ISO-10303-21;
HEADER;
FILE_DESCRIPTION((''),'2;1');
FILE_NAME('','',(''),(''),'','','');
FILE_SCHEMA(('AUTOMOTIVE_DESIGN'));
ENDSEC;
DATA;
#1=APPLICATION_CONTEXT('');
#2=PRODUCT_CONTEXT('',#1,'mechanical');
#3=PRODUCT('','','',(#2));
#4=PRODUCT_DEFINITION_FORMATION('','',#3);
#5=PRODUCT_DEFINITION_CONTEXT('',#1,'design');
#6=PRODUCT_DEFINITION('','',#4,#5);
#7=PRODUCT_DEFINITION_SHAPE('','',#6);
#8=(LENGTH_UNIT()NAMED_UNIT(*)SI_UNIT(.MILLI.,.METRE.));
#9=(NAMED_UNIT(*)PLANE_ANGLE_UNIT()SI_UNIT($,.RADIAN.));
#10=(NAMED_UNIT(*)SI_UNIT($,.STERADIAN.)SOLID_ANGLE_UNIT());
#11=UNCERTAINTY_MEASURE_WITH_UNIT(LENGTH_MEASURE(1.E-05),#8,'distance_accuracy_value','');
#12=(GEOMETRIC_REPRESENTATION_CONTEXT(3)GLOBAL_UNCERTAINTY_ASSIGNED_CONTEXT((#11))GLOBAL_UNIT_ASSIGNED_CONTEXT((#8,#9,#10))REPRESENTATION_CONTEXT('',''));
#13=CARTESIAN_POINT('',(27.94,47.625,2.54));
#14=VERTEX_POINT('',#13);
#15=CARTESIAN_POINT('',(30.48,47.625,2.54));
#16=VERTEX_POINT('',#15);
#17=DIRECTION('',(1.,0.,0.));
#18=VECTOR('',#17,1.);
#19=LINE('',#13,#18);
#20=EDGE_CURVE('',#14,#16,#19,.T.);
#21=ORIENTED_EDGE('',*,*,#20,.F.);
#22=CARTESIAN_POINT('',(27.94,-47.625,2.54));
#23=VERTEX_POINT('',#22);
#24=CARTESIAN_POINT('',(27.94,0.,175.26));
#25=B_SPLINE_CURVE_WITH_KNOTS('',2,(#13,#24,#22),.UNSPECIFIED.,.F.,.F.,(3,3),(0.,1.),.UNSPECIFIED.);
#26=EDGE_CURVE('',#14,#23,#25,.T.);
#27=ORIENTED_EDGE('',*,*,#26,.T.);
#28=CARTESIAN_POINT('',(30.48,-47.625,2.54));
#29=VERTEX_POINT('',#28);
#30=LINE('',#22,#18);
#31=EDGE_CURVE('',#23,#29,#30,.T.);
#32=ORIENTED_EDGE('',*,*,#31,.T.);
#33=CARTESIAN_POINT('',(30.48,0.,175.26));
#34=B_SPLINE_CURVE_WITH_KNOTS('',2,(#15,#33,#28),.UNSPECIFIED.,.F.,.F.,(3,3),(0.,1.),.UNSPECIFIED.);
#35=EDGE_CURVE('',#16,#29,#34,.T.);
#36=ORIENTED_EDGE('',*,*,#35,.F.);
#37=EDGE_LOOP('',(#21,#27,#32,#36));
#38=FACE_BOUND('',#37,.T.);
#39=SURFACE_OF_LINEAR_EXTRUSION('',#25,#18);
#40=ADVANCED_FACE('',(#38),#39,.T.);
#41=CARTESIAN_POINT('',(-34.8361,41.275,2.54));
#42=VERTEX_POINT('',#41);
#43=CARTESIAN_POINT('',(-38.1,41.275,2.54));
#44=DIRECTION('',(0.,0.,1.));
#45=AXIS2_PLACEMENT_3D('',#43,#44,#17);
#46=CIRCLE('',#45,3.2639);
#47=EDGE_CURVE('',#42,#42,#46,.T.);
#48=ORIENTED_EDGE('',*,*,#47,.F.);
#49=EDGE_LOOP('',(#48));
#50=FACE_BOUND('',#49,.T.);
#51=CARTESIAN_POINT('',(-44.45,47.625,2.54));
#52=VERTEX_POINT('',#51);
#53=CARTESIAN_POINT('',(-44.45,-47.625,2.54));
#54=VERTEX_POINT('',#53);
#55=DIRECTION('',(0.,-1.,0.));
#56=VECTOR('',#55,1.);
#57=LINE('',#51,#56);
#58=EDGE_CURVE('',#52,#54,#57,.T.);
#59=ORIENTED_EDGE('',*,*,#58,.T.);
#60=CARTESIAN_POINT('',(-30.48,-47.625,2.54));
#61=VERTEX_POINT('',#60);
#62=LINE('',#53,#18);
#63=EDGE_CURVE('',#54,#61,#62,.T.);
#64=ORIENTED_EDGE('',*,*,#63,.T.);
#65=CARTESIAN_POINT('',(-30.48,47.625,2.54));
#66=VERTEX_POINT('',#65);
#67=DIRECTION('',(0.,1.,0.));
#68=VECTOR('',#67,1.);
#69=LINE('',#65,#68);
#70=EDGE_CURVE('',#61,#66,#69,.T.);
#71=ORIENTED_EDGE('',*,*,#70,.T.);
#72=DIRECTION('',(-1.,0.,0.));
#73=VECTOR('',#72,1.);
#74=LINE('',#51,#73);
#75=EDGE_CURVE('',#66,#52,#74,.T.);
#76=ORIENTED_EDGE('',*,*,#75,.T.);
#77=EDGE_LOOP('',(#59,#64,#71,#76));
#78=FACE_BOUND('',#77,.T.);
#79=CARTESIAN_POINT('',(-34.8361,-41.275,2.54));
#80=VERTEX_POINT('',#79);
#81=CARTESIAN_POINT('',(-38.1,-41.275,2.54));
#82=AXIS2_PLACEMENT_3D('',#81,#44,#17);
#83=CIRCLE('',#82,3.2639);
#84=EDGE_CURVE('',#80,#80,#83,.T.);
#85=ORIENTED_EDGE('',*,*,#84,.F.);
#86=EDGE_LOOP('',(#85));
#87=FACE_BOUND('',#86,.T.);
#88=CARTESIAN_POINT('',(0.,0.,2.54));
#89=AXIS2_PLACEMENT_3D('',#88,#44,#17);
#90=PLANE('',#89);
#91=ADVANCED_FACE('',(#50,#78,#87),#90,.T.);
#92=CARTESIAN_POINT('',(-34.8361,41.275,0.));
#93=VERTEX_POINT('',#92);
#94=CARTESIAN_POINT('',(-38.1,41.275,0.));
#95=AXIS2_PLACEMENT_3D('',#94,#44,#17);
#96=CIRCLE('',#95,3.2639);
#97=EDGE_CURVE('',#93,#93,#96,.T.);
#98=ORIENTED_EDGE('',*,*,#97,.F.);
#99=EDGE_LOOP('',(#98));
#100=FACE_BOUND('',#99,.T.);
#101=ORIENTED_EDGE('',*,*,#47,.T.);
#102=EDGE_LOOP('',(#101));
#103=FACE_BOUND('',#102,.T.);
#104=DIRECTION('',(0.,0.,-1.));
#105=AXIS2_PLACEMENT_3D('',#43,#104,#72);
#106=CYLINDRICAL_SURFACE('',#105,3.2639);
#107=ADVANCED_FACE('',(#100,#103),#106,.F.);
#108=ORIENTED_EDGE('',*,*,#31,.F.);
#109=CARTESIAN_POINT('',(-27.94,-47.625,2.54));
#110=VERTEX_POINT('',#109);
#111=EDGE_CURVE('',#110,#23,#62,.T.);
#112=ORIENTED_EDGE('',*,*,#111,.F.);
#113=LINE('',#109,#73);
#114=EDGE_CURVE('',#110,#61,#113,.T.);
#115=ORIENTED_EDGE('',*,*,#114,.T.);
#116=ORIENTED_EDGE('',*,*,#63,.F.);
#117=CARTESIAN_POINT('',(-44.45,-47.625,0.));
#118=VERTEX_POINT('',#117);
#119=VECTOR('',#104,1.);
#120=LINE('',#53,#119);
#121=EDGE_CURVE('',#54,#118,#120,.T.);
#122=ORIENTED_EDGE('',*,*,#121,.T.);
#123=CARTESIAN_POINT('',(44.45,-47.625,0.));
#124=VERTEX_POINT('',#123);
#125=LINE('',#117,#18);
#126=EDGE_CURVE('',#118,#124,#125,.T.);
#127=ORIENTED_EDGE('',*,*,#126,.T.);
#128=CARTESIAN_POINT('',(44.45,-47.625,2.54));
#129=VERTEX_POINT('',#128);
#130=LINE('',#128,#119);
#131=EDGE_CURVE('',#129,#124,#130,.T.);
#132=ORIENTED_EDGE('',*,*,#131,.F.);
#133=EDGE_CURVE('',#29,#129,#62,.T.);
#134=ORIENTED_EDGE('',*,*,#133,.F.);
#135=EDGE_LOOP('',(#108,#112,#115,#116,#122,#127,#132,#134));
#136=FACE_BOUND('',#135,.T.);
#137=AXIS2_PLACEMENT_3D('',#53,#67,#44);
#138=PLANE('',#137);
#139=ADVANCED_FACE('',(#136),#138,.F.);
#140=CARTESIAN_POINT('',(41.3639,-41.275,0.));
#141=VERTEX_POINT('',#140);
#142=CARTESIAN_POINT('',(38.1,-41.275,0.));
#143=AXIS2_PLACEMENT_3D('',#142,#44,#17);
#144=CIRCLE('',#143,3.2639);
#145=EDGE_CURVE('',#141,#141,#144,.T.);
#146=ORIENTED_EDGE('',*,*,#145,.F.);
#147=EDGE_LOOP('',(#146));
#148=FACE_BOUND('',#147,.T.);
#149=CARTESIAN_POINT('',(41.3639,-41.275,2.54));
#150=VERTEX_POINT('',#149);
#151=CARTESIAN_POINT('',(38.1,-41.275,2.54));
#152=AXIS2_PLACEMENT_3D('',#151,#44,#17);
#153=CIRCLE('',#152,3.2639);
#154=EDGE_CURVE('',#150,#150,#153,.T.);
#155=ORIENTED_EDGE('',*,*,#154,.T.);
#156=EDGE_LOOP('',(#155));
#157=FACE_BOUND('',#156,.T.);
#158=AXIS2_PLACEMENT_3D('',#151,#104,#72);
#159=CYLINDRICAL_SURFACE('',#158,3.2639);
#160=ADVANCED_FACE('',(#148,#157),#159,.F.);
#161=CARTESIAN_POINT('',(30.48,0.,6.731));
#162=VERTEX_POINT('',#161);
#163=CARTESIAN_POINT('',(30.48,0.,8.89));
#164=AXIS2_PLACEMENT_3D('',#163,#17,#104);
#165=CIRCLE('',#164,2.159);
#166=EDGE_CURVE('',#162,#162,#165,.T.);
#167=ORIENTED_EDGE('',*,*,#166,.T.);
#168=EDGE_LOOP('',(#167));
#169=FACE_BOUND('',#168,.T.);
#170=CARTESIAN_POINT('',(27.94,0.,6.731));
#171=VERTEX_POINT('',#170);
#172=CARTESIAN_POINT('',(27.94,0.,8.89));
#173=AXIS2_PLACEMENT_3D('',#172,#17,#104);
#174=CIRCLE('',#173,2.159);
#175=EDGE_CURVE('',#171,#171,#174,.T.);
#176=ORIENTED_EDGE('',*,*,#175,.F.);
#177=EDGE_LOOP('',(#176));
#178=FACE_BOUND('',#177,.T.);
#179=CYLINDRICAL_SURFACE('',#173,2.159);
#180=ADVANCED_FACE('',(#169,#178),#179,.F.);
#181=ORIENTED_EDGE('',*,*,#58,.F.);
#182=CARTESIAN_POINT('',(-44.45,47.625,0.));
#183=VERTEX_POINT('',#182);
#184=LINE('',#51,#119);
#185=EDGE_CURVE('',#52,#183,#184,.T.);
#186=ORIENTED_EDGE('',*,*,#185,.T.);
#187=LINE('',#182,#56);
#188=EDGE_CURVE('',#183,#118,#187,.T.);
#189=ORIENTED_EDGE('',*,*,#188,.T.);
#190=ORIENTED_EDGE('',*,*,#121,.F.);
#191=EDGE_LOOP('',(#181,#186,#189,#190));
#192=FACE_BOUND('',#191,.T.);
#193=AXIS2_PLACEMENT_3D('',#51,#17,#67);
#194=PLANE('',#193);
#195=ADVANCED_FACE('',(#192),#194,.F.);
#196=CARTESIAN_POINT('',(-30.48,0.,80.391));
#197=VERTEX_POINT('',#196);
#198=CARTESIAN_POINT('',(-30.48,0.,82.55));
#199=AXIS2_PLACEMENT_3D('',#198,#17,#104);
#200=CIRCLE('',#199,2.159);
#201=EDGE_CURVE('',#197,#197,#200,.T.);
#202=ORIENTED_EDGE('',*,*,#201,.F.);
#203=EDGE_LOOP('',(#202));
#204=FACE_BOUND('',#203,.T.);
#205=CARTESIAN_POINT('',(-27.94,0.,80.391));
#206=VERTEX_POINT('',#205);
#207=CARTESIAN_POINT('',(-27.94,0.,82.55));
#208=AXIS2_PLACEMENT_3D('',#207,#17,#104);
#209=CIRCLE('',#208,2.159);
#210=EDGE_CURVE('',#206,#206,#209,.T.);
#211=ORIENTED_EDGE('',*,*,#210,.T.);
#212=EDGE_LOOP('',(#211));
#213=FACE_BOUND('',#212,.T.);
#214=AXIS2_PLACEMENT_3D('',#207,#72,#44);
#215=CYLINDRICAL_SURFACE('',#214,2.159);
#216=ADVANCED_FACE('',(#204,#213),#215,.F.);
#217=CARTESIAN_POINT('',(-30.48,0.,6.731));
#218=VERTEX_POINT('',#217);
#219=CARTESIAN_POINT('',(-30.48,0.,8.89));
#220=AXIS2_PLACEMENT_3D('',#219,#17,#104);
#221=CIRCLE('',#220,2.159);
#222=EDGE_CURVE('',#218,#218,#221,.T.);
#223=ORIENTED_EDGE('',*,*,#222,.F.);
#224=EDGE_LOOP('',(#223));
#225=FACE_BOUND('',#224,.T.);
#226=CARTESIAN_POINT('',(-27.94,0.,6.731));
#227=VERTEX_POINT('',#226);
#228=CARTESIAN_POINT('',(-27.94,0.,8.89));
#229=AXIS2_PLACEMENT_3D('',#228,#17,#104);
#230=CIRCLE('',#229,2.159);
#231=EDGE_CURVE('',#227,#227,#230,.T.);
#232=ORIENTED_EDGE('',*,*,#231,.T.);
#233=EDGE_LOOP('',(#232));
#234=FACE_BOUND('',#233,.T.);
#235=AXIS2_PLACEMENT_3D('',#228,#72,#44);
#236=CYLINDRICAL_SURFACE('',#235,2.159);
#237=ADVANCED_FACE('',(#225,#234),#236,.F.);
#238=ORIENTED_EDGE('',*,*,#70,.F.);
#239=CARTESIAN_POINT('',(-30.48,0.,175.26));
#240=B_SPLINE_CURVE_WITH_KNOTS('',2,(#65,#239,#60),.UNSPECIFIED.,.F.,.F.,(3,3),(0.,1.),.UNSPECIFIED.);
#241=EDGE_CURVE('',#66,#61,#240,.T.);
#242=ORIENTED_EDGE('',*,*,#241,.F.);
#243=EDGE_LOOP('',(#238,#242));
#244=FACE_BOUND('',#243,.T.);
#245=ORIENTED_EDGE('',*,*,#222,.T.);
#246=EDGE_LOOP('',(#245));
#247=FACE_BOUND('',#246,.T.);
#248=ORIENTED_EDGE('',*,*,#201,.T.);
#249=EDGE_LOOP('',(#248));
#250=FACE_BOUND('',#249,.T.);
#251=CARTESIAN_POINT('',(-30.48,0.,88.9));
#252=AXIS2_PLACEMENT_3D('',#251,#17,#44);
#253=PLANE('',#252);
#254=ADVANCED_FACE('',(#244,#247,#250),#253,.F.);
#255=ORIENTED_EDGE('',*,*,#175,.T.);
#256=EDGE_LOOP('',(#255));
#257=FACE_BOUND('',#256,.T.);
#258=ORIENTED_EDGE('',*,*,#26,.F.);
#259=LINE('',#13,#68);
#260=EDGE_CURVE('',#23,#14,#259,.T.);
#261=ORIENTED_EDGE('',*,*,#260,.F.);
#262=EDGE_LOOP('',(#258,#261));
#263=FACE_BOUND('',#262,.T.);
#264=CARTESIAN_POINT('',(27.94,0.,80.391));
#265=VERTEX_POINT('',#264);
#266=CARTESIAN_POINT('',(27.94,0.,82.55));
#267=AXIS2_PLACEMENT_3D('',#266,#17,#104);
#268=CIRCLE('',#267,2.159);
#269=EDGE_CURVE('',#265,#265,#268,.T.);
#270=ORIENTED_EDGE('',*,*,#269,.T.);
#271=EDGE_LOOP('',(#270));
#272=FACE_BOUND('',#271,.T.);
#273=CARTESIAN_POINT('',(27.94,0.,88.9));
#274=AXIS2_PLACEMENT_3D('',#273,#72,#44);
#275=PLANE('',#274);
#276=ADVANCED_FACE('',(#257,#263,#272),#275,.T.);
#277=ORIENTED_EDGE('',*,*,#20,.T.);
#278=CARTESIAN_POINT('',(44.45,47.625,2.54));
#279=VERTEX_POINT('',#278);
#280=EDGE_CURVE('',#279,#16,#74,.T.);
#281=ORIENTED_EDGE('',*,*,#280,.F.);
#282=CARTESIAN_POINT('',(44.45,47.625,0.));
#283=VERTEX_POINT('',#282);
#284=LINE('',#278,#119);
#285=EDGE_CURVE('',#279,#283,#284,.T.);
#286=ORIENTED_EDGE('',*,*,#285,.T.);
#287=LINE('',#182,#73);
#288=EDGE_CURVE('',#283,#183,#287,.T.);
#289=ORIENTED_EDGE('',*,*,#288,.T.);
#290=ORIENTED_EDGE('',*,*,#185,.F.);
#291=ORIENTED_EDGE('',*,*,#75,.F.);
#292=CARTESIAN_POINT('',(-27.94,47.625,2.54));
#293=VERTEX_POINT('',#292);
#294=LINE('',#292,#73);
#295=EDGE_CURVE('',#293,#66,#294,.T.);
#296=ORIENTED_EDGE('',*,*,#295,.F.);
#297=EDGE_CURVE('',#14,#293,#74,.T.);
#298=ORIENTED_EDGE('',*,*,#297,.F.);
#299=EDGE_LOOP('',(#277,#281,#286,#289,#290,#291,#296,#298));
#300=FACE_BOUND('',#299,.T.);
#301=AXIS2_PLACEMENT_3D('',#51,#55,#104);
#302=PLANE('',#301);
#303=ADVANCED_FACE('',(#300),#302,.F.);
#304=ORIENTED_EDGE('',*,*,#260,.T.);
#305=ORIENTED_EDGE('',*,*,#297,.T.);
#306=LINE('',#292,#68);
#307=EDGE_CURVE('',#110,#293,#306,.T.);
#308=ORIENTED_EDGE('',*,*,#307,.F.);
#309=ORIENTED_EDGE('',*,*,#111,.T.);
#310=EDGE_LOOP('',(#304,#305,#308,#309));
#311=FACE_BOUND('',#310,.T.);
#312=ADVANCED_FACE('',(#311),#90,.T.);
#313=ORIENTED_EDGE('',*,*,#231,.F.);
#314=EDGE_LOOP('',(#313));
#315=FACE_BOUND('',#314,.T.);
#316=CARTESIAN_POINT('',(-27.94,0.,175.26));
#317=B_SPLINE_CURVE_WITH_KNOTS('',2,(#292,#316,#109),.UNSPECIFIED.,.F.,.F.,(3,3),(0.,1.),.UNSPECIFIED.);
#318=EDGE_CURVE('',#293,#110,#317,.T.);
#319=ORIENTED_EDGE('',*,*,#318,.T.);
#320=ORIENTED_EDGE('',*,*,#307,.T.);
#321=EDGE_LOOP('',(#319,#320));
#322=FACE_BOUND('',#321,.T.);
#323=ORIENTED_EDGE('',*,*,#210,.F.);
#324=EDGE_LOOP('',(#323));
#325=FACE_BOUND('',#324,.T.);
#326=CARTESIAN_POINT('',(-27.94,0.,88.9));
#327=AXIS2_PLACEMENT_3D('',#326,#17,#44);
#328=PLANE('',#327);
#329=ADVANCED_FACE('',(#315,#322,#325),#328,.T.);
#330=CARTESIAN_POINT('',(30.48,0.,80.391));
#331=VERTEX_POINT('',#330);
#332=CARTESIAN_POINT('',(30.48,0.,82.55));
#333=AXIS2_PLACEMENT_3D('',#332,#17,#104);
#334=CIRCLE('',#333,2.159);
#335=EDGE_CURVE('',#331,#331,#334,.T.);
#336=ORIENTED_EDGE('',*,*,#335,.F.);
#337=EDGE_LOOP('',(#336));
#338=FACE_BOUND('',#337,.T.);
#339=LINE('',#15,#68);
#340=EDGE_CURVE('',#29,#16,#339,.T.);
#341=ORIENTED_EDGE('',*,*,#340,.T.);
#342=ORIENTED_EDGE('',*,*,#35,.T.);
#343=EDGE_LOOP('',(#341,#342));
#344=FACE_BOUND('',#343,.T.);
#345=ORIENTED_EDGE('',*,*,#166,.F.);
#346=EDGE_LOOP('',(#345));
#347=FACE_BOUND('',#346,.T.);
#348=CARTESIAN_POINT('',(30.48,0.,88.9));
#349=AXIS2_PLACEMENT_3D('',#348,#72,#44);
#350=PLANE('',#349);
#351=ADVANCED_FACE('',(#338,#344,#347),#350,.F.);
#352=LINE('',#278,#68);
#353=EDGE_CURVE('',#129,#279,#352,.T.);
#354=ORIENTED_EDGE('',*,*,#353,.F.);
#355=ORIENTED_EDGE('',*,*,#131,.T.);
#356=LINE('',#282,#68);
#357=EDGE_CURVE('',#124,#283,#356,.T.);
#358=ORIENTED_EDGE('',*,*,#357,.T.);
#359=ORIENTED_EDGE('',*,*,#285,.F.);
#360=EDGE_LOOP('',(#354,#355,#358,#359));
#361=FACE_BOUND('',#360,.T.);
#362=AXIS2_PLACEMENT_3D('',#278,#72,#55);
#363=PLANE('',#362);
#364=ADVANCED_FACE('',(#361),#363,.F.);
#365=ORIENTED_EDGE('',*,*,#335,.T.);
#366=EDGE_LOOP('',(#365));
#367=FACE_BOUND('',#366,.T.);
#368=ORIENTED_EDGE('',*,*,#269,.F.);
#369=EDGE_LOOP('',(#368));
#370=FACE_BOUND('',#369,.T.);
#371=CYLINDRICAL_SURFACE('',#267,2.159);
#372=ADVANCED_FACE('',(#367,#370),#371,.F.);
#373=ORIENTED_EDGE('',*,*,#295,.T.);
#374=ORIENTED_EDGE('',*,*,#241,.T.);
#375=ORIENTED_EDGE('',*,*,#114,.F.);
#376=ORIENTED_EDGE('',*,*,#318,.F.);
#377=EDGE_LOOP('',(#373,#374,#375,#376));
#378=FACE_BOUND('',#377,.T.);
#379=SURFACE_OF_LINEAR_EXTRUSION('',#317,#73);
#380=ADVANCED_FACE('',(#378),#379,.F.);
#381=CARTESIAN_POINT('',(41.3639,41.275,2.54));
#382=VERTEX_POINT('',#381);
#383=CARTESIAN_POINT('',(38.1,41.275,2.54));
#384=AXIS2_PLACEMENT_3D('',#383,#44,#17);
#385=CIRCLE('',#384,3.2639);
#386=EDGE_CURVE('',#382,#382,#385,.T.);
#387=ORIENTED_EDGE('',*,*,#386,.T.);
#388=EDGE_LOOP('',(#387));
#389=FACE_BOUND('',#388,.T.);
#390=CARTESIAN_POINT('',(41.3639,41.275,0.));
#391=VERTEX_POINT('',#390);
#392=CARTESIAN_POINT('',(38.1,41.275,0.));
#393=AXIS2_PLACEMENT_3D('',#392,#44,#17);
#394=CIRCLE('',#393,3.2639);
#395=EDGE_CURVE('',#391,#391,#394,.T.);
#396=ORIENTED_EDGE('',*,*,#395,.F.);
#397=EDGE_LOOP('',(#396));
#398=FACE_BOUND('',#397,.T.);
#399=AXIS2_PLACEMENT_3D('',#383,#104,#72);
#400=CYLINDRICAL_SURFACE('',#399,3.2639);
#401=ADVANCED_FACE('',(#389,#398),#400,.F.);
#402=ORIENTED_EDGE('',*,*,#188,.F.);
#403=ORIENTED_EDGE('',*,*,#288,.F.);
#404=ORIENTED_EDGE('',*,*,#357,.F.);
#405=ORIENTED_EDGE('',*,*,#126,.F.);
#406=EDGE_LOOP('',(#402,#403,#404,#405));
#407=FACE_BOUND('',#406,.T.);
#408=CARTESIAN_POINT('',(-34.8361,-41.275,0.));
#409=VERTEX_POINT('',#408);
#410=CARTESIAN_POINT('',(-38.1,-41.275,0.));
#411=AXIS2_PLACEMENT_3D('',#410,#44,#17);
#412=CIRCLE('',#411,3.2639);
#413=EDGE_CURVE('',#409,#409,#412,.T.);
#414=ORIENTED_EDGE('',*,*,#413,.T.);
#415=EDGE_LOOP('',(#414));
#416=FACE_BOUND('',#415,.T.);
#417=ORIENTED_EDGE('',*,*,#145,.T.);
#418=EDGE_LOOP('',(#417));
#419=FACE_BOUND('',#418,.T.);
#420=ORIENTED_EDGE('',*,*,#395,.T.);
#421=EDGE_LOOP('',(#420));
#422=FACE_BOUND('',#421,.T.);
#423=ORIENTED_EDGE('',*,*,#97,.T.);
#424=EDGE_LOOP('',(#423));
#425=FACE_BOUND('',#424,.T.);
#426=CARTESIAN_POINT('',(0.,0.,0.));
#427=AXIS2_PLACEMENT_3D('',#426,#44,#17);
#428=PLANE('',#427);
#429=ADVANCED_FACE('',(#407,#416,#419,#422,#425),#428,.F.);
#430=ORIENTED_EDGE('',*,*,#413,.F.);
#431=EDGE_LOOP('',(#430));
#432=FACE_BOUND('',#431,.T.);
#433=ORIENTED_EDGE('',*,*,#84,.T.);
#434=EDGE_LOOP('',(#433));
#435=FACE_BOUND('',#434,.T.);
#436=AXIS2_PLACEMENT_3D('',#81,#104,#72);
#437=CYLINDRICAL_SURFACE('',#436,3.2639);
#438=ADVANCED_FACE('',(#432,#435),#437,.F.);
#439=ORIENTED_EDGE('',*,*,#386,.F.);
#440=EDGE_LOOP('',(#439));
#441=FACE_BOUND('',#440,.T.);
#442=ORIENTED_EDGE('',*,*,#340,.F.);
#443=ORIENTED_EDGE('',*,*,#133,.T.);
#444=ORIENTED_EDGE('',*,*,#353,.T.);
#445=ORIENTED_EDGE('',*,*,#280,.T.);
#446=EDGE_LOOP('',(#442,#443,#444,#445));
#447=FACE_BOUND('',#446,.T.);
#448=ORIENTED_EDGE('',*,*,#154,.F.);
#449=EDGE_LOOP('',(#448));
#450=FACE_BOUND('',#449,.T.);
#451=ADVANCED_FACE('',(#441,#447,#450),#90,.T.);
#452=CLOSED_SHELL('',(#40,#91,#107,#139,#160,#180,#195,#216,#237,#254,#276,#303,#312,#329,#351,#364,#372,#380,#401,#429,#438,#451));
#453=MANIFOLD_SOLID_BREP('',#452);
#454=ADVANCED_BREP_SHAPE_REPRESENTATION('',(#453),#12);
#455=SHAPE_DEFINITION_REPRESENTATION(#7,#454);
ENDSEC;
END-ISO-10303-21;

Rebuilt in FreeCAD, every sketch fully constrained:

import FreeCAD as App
import Part
import Sketcher
from FreeCAD import Vector
Q = App.Units.Quantity

doc = App.newDocument("Part")
body = doc.addObject("PartDesign::Body", "Body")

sketch1 = doc.addObject("Sketcher::SketchObject", "Sketch")
body.addObject(sketch1)
sketch1.AttachmentSupport = (doc.XY_Plane, [""])
sketch1.MapMode = "FlatFace"
sketch1.addGeometry([
    Part.LineSegment(Vector(-44.5, 47.6, 0), Vector(-44.5, -47.6, 0)),
    Part.LineSegment(Vector(-44.5, -47.6, 0), Vector(44.5, -47.6, 0)),
    Part.LineSegment(Vector(44.5, -47.6, 0), Vector(44.5, 47.6, 0)),
    Part.LineSegment(Vector(44.5, 47.6, 0), Vector(-44.5, 47.6, 0)),
    Part.Circle(Vector(-38.1, -41.3, 0), Vector(0, 0, 1), 3.3),
    Part.Circle(Vector(38.1, -41.3, 0), Vector(0, 0, 1), 3.3),
    Part.Circle(Vector(-38.1, 41.3, 0), Vector(0, 0, 1), 3.3),
    Part.Circle(Vector(38.1, 41.3, 0), Vector(0, 0, 1), 3.3),
], False)
sketch1.addConstraint([
    Sketcher.Constraint("Coincident", 0, 2, 1, 1),
    Sketcher.Constraint("Coincident", 1, 2, 2, 1),
    Sketcher.Constraint("Coincident", 2, 2, 3, 1),
    Sketcher.Constraint("Coincident", 3, 2, 0, 1),
    Sketcher.Constraint("Vertical", 0),
    Sketcher.Constraint("Horizontal", 1),
    Sketcher.Constraint("Vertical", 2),
    Sketcher.Constraint("Horizontal", 3),
    Sketcher.Constraint("Equal", 4, 5),
    Sketcher.Constraint("Equal", 5, 6),
    Sketcher.Constraint("Equal", 6, 7),
    Sketcher.Constraint("Symmetric", 5, 3, 6, 3, -1, 1),
    Sketcher.Constraint("Symmetric", 4, 3, 7, 3, -1, 1),
    Sketcher.Constraint("Symmetric", 0, 2, 2, 2, -1, 1),
    Sketcher.Constraint("Symmetric", 4, 3, 5, 3, -2),
    Sketcher.Constraint("Diameter", 4, Q("0.257 in")),
    Sketcher.Constraint("DistanceX", 1, 1, 1, 2, Q("3.5 in")),
    Sketcher.Constraint("DistanceX", 4, 3, 5, 3, Q("3 in")),
    Sketcher.Constraint("DistanceY", 0, 2, 0, 1, Q("3.75 in")),
    Sketcher.Constraint("DistanceY", 0, 2, 6, 3, Q("3.5 in")),
])
pad1 = doc.addObject("PartDesign::Pad", "Pad")
body.addObject(pad1)
pad1.Profile = sketch1
pad1.Length = Q("0.1 in")

sketch2 = doc.addObject("Sketcher::SketchObject", "Sketch001")
body.addObject(sketch2)
sketch2.AttachmentSupport = (doc.YZ_Plane, [""])
sketch2.MapMode = "FlatFace"
sketch2.AttachmentOffset = App.Placement(Vector(0, 0, 1.2 * 25.4), App.Rotation())
sketch2.addGeometry([
    Part.LineSegment(Vector(-47.625, 2.54, 0), Vector(47.625, 2.54, 0)),
    Part.BSplineCurve([Vector(47.625, 2.54, 0), Vector(0, 175.26, 0), Vector(-47.625, 2.54, 0)], [3, 3], [0, 1], False, 2, [1, 1, 1], False),
    Part.Circle(Vector(0, 8.89, 0), Vector(0, 0, 1), 2.159),
    Part.Circle(Vector(0, 82.55, 0), Vector(0, 0, 1), 2.159),
], False)
sketch2.addConstraint([
    Sketcher.Constraint("Block", 1),
    Sketcher.Constraint("Coincident", 0, 1, 1, 2),
    Sketcher.Constraint("Coincident", 1, 1, 0, 2),
    Sketcher.Constraint("Equal", 2, 3),
    Sketcher.Constraint("PointOnObject", 2, 3, -2),
    Sketcher.Constraint("PointOnObject", 3, 3, -2),
    Sketcher.Constraint("Diameter", 2, Q("0.17 in")),
    Sketcher.Constraint("DistanceY", 2, 3, 3, 3, Q("2.9 in")),
    Sketcher.Constraint("DistanceY", -1, 1, 2, 3, Q("0.35 in")),
])
pad2 = doc.addObject("PartDesign::Pad", "Pad001")
body.addObject(pad2)
pad2.Profile = sketch2
pad2.Length = Q("0.1 in")
pad2.Reversed = True
doc.recompute()

mirrored = doc.addObject("PartDesign::Mirrored", "Mirrored")
body.addObject(mirrored)
mirrored.Originals = [pad2]
mirrored.MirrorPlane = (doc.YZ_Plane, [""])
body.Tip = mirrored

doc.recompute()
